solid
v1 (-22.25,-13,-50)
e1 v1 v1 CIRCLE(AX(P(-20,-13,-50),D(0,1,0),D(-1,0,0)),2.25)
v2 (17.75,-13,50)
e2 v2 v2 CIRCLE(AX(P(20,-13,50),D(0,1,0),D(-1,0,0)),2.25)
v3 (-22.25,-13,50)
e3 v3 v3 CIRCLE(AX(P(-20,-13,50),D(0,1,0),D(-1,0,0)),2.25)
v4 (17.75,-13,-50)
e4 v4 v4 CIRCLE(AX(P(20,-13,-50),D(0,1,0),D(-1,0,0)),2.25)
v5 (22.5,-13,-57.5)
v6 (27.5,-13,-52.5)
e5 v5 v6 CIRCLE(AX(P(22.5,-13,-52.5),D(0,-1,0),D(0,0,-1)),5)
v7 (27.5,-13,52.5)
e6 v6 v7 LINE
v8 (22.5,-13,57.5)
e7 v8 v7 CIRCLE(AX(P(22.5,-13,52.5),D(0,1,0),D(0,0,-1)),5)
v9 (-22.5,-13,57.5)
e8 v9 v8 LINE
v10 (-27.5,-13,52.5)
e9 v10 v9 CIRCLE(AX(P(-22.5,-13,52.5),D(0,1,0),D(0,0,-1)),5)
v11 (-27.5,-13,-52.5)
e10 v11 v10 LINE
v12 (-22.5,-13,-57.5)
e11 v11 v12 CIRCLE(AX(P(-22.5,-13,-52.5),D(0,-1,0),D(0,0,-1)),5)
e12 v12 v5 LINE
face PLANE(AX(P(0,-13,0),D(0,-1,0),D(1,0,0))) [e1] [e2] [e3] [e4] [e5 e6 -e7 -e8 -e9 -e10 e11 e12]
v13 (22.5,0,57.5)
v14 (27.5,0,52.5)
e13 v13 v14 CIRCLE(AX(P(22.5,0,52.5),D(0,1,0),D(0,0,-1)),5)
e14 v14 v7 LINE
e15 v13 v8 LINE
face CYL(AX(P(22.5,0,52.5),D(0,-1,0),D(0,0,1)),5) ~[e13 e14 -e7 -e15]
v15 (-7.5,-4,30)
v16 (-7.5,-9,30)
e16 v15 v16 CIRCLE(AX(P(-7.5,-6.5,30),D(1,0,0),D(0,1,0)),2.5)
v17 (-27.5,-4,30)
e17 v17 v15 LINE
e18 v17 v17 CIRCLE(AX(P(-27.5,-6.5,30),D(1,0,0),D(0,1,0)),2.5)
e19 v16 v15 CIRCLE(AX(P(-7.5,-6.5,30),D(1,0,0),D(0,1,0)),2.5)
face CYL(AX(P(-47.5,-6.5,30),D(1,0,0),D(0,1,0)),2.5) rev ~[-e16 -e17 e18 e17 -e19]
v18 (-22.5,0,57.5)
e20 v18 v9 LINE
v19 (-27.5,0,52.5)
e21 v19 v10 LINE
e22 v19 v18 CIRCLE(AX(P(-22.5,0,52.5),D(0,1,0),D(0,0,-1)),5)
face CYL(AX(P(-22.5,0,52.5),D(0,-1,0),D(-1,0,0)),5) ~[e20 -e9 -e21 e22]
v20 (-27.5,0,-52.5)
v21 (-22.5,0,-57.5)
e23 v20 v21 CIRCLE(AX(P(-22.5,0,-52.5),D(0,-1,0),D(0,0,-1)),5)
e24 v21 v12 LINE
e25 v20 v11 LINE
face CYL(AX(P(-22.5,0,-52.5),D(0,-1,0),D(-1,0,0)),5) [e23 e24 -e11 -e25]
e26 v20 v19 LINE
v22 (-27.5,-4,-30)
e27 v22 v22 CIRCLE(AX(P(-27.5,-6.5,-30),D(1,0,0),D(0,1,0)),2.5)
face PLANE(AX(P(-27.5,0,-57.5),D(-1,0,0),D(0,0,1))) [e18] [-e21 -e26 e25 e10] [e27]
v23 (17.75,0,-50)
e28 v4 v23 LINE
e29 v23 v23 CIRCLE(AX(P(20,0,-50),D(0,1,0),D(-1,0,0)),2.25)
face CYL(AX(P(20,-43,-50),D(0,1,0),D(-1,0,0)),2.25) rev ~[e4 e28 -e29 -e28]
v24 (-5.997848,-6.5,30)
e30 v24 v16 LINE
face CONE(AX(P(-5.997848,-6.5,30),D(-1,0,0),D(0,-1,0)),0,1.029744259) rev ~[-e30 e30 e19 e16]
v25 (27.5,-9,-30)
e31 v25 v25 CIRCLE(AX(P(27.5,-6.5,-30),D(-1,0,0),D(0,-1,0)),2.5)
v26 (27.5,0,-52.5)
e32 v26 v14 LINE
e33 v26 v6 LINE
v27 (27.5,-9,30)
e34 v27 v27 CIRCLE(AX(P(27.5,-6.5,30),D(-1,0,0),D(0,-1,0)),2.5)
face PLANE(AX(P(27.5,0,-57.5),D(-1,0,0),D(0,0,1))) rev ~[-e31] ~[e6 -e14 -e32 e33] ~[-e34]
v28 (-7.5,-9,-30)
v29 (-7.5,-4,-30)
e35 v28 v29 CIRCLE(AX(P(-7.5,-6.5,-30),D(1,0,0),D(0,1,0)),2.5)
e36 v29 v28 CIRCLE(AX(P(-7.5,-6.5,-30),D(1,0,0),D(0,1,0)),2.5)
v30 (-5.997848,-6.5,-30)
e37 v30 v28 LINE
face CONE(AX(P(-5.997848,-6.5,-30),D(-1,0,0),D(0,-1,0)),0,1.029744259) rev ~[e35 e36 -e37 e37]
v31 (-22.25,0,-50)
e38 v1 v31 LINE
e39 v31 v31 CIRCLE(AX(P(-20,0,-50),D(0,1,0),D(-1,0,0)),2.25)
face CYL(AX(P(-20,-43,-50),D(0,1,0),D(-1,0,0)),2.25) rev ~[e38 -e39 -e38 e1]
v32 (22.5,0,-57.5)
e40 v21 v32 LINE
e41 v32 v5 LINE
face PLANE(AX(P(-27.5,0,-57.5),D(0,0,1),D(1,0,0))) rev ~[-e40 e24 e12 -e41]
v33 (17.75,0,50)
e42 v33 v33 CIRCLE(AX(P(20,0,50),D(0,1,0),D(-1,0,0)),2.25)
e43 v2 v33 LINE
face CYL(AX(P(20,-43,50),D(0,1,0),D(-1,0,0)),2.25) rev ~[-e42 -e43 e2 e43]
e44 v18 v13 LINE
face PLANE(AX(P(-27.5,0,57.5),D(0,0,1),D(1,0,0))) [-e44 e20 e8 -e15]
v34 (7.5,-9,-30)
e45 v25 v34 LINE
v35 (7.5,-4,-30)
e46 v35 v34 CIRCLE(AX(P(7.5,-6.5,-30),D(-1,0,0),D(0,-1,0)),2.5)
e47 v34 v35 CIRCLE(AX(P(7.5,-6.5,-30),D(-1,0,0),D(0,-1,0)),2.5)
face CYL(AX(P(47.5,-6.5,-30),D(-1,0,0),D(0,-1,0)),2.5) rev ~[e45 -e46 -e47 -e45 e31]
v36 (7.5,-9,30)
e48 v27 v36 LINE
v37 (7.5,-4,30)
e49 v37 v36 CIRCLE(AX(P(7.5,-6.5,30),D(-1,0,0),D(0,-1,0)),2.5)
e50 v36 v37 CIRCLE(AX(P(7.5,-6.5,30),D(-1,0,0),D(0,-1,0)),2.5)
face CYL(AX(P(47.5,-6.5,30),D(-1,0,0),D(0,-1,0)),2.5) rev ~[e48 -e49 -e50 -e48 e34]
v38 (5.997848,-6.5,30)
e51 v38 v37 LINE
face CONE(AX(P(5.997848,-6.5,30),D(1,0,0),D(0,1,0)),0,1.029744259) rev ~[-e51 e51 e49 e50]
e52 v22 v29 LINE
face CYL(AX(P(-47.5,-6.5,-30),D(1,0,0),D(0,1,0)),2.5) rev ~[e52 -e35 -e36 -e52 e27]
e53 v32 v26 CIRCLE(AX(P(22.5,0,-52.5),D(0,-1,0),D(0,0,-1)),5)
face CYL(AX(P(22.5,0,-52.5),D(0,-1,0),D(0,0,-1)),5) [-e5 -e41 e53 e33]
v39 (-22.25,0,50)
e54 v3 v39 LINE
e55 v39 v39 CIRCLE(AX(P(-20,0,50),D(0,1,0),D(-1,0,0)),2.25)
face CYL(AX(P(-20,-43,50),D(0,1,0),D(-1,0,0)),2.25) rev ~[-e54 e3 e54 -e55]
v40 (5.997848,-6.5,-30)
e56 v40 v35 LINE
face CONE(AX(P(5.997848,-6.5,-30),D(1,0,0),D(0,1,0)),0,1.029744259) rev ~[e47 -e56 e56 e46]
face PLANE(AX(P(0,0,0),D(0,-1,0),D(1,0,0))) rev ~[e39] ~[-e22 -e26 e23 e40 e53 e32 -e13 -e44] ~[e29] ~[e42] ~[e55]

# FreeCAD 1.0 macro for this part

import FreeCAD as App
import Part
import Sketcher

V = App.Vector


def edges_at(feature, points):
    """Names of the edges that pass closest to the given points."""
    edges = feature.Shape.Edges
    near = lambda p: min(range(len(edges)), key=lambda i: edges[i].distToShape(Part.Vertex(*p))[0])
    return sorted({f"Edge{near(p) + 1}" for p in points})

doc = App.newDocument("Part")
body = doc.addObject("PartDesign::Body", "Body")

# Sketch on XZ plane
sketch1 = doc.addObject("Sketcher::SketchObject", "Sketch")
body.addObject(sketch1)
sketch1.AttachmentSupport = (doc.XZ_Plane, [""])
sketch1.MapMode = "FlatFace"
sketch1.addGeometry([
    Part.LineSegment(V(-28, 58, 0), V(-28, -58, 0)),
    Part.LineSegment(V(-28, -58, 0), V(28, -58, 0)),
    Part.LineSegment(V(28, -58, 0), V(28, 58, 0)),
    Part.LineSegment(V(28, 58, 0), V(-28, 58, 0)),
], False)
sketch1.addConstraint([
    Sketcher.Constraint("Coincident", 0, 2, 1, 1),
    Sketcher.Constraint("Coincident", 1, 2, 2, 1),
    Sketcher.Constraint("Coincident", 2, 2, 3, 1),
    Sketcher.Constraint("Coincident", 3, 2, 0, 1),
    Sketcher.Constraint("Vertical", 0),
    Sketcher.Constraint("Horizontal", 1),
    Sketcher.Constraint("Vertical", 2),
    Sketcher.Constraint("Horizontal", 3),
    Sketcher.Constraint("Symmetric", 0, 2, 2, 2, -1, 1),
    Sketcher.Constraint("DistanceX", 1, 1, 1, 2, 55.0),
    Sketcher.Constraint("DistanceY", 0, 2, 0, 1, 115.0),
])
pad1 = doc.addObject("PartDesign::Pad", "Pad")
body.addObject(pad1)
pad1.Profile = sketch1
pad1.Length = 13

# Sketch on XZ plane
sketch2 = doc.addObject("Sketcher::SketchObject", "Sketch001")
body.addObject(sketch2)
sketch2.AttachmentSupport = (doc.XZ_Plane, [""])
sketch2.MapMode = "FlatFace"
sketch2.AttachmentOffset = App.Placement(V(0, 0, 13), App.Rotation())
sketch2.addGeometry([
    Part.Circle(V(-20, 50, 0), V(0, 0, 1), 2.2),
    Part.Circle(V(20, 50, 0), V(0, 0, 1), 2.2),
    Part.Circle(V(20, -50, 0), V(0, 0, 1), 2.2),
    Part.Circle(V(-20, -50, 0), V(0, 0, 1), 2.2),
], False)
sketch2.addConstraint([
    Sketcher.Constraint("Equal", 0, 1),
    Sketcher.Constraint("Equal", 1, 2),
    Sketcher.Constraint("Equal", 2, 3),
    Sketcher.Constraint("Symmetric", 0, 3, 2, 3, -1, 1),
    Sketcher.Constraint("Symmetric", 1, 3, 3, 3, -1, 1),
    Sketcher.Constraint("Symmetric", 0, 3, 1, 3, -2),
    Sketcher.Constraint("Diameter", 0, 4.5),
    Sketcher.Constraint("DistanceX", 0, 3, -1, 1, 20.0),
    Sketcher.Constraint("DistanceY", -1, 1, 0, 3, 50.0),
])
doc.recompute()
hole = doc.addObject("PartDesign::Hole", "Hole")
body.addObject(hole)
hole.Profile = sketch2
hole.ThreadType = "None"
hole.Diameter = 4.5
hole.DepthType = "Dimension"
hole.Depth = 30
hole.DrillPoint = "Angled"
hole.DrillPointAngle = 118

# Sketch on YZ plane
sketch3 = doc.addObject("Sketcher::SketchObject", "Sketch002")
body.addObject(sketch3)
sketch3.AttachmentSupport = (doc.YZ_Plane, [""])
sketch3.MapMode = "FlatFace"
sketch3.AttachmentOffset = App.Placement(V(0, 0, 27.5), App.Rotation())
sketch3.addGeometry([
    Part.Circle(V(-6.5, 30, 0), V(0, 0, 1), 2.5),
    Part.Circle(V(-6.5, -30, 0), V(0, 0, 1), 2.5),
], False)
sketch3.addConstraint([
    Sketcher.Constraint("Equal", 0, 1),
    Sketcher.Constraint("Symmetric", 0, 3, 1, 3, -1),
    Sketcher.Constraint("Diameter", 0, 5.0),
    Sketcher.Constraint("DistanceY", -1, 1, 0, 3, 30.0),
    Sketcher.Constraint("DistanceX", 0, 3, -1, 1, 6.5),
])
doc.recompute()
hole2 = doc.addObject("PartDesign::Hole", "Hole001")
body.addObject(hole2)
hole2.Profile = sketch3
hole2.ThreadType = "None"
hole2.Diameter = 5
hole2.DepthType = "Dimension"
hole2.Depth = 20
hole2.DrillPoint = "Angled"
hole2.DrillPointAngle = 118

# Sketch on YZ plane
sketch4 = doc.addObject("Sketcher::SketchObject", "Sketch003")
body.addObject(sketch4)
sketch4.AttachmentSupport = (doc.YZ_Plane, [""])
sketch4.MapMode = "FlatFace"
sketch4.AttachmentOffset = App.Placement(V(0, 0, -27.5), App.Rotation())
sketch4.addGeometry([
    Part.Circle(V(-6.5, 30, 0), V(0, 0, 1), 2.5),
    Part.Circle(V(-6.5, -30, 0), V(0, 0, 1), 2.5),
], False)
sketch4.addConstraint([
    Sketcher.Constraint("Equal", 0, 1),
    Sketcher.Constraint("Symmetric", 0, 3, 1, 3, -1),
    Sketcher.Constraint("Diameter", 0, 5.0),
    Sketcher.Constraint("DistanceY", -1, 1, 0, 3, 30.0),
    Sketcher.Constraint("DistanceX", 0, 3, -1, 1, 6.5),
])
doc.recompute()
hole3 = doc.addObject("PartDesign::Hole", "Hole002")
body.addObject(hole3)
hole3.Profile = sketch4
hole3.ThreadType = "None"
hole3.Diameter = 5
hole3.DepthType = "Dimension"
hole3.Depth = 20
hole3.DrillPoint = "Angled"
hole3.DrillPointAngle = 118
hole3.Reversed = True
doc.recompute()

fillet = doc.addObject("PartDesign::Fillet", "Fillet")
body.addObject(fillet)
fillet.Base = (hole3, edges_at(hole3, [
    (27.5, -6.5, 57.5),
    (-27.5, -6.5, 57.5),
    (-27.5, -6.5, -57.5),
    (27.5, -6.5, -57.5),
]))
fillet.Radius = 5

doc.recompute()
